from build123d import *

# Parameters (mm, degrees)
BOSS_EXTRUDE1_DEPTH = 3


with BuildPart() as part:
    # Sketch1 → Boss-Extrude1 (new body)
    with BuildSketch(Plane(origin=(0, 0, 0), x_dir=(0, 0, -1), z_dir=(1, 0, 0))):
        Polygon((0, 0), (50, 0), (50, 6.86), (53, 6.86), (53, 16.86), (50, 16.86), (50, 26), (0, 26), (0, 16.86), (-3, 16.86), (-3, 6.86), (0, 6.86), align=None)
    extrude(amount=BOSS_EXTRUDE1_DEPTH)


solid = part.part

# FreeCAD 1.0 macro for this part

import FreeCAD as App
import Part
import Sketcher
from FreeCAD import Vector


def add_polygon(sketch, points):
    """Adds a closed chain of lines whose ends are joined by coincident constraints."""
    first, n = sketch.GeometryCount, len(points)
    for a, b in zip(points, points[1:] + points[:1]):
        sketch.addGeometry(Part.LineSegment(App.Vector(*a, 0), App.Vector(*b, 0)), False)
    for i in range(n):
        sketch.addConstraint(Sketcher.Constraint("Coincident", first + i, 2, first + (i + 1) % n, 1))

doc = App.newDocument("Part")
body = doc.addObject("PartDesign::Body", "Body")

sketch1 = body.newObject("Sketcher::SketchObject", "Sketch")
sketch1.AttachmentSupport = (doc.getObject("YZ_Plane"), [""])
sketch1.MapMode = "FlatFace"
add_polygon(sketch1, [(0, 0), (0, -50), (6.9, -50), (6.9, -53), (16.9, -53), (16.9, -50), (26, -50), (26, 0), (16.9, 0), (16.9, 3), (6.9, 3), (6.9, 0)])
sketch1.addConstraint([
    Sketcher.Constraint("Vertical", 0),
    Sketcher.Constraint("Horizontal", 1),
    Sketcher.Constraint("Vertical", 2),
    Sketcher.Constraint("Horizontal", 3),
    Sketcher.Constraint("Vertical", 4),
    Sketcher.Constraint("Horizontal", 5),
    Sketcher.Constraint("Vertical", 6),
    Sketcher.Constraint("Horizontal", 7),
    Sketcher.Constraint("Vertical", 8),
    Sketcher.Constraint("Horizontal", 9),
    Sketcher.Constraint("Vertical", 10),
    Sketcher.Constraint("Horizontal", 11),
    Sketcher.Constraint("Coincident", 11, 2, -1, 1),
    Sketcher.Constraint("PointOnObject", 6, 2, -1),
    Sketcher.Constraint("Horizontal", 1, 2, 4, 2),
    Sketcher.Constraint("Vertical", 4, 2, 7, 2),
    Sketcher.Constraint("Vertical", 2, 2, 9, 2),
    Sketcher.Constraint("Equal", 4, 8),
    Sketcher.Constraint("DistanceX", 3, 1, 3, 2, 10.0),
    Sketcher.Constraint("DistanceY", 0, 2, 0, 1, 50.0),
    Sketcher.Constraint("DistanceY", 2, 2, 2, 1, 3.0),
    Sketcher.Constraint("DistanceX", -1, 1, 5, 2, 26.0),
    Sketcher.Constraint("DistanceX", 1, 1, 1, 2, 6.86),
])
pad1 = body.newObject("PartDesign::Pad", "Pad")
pad1.Profile = sketch1
pad1.Length = 3

doc.recompute()
